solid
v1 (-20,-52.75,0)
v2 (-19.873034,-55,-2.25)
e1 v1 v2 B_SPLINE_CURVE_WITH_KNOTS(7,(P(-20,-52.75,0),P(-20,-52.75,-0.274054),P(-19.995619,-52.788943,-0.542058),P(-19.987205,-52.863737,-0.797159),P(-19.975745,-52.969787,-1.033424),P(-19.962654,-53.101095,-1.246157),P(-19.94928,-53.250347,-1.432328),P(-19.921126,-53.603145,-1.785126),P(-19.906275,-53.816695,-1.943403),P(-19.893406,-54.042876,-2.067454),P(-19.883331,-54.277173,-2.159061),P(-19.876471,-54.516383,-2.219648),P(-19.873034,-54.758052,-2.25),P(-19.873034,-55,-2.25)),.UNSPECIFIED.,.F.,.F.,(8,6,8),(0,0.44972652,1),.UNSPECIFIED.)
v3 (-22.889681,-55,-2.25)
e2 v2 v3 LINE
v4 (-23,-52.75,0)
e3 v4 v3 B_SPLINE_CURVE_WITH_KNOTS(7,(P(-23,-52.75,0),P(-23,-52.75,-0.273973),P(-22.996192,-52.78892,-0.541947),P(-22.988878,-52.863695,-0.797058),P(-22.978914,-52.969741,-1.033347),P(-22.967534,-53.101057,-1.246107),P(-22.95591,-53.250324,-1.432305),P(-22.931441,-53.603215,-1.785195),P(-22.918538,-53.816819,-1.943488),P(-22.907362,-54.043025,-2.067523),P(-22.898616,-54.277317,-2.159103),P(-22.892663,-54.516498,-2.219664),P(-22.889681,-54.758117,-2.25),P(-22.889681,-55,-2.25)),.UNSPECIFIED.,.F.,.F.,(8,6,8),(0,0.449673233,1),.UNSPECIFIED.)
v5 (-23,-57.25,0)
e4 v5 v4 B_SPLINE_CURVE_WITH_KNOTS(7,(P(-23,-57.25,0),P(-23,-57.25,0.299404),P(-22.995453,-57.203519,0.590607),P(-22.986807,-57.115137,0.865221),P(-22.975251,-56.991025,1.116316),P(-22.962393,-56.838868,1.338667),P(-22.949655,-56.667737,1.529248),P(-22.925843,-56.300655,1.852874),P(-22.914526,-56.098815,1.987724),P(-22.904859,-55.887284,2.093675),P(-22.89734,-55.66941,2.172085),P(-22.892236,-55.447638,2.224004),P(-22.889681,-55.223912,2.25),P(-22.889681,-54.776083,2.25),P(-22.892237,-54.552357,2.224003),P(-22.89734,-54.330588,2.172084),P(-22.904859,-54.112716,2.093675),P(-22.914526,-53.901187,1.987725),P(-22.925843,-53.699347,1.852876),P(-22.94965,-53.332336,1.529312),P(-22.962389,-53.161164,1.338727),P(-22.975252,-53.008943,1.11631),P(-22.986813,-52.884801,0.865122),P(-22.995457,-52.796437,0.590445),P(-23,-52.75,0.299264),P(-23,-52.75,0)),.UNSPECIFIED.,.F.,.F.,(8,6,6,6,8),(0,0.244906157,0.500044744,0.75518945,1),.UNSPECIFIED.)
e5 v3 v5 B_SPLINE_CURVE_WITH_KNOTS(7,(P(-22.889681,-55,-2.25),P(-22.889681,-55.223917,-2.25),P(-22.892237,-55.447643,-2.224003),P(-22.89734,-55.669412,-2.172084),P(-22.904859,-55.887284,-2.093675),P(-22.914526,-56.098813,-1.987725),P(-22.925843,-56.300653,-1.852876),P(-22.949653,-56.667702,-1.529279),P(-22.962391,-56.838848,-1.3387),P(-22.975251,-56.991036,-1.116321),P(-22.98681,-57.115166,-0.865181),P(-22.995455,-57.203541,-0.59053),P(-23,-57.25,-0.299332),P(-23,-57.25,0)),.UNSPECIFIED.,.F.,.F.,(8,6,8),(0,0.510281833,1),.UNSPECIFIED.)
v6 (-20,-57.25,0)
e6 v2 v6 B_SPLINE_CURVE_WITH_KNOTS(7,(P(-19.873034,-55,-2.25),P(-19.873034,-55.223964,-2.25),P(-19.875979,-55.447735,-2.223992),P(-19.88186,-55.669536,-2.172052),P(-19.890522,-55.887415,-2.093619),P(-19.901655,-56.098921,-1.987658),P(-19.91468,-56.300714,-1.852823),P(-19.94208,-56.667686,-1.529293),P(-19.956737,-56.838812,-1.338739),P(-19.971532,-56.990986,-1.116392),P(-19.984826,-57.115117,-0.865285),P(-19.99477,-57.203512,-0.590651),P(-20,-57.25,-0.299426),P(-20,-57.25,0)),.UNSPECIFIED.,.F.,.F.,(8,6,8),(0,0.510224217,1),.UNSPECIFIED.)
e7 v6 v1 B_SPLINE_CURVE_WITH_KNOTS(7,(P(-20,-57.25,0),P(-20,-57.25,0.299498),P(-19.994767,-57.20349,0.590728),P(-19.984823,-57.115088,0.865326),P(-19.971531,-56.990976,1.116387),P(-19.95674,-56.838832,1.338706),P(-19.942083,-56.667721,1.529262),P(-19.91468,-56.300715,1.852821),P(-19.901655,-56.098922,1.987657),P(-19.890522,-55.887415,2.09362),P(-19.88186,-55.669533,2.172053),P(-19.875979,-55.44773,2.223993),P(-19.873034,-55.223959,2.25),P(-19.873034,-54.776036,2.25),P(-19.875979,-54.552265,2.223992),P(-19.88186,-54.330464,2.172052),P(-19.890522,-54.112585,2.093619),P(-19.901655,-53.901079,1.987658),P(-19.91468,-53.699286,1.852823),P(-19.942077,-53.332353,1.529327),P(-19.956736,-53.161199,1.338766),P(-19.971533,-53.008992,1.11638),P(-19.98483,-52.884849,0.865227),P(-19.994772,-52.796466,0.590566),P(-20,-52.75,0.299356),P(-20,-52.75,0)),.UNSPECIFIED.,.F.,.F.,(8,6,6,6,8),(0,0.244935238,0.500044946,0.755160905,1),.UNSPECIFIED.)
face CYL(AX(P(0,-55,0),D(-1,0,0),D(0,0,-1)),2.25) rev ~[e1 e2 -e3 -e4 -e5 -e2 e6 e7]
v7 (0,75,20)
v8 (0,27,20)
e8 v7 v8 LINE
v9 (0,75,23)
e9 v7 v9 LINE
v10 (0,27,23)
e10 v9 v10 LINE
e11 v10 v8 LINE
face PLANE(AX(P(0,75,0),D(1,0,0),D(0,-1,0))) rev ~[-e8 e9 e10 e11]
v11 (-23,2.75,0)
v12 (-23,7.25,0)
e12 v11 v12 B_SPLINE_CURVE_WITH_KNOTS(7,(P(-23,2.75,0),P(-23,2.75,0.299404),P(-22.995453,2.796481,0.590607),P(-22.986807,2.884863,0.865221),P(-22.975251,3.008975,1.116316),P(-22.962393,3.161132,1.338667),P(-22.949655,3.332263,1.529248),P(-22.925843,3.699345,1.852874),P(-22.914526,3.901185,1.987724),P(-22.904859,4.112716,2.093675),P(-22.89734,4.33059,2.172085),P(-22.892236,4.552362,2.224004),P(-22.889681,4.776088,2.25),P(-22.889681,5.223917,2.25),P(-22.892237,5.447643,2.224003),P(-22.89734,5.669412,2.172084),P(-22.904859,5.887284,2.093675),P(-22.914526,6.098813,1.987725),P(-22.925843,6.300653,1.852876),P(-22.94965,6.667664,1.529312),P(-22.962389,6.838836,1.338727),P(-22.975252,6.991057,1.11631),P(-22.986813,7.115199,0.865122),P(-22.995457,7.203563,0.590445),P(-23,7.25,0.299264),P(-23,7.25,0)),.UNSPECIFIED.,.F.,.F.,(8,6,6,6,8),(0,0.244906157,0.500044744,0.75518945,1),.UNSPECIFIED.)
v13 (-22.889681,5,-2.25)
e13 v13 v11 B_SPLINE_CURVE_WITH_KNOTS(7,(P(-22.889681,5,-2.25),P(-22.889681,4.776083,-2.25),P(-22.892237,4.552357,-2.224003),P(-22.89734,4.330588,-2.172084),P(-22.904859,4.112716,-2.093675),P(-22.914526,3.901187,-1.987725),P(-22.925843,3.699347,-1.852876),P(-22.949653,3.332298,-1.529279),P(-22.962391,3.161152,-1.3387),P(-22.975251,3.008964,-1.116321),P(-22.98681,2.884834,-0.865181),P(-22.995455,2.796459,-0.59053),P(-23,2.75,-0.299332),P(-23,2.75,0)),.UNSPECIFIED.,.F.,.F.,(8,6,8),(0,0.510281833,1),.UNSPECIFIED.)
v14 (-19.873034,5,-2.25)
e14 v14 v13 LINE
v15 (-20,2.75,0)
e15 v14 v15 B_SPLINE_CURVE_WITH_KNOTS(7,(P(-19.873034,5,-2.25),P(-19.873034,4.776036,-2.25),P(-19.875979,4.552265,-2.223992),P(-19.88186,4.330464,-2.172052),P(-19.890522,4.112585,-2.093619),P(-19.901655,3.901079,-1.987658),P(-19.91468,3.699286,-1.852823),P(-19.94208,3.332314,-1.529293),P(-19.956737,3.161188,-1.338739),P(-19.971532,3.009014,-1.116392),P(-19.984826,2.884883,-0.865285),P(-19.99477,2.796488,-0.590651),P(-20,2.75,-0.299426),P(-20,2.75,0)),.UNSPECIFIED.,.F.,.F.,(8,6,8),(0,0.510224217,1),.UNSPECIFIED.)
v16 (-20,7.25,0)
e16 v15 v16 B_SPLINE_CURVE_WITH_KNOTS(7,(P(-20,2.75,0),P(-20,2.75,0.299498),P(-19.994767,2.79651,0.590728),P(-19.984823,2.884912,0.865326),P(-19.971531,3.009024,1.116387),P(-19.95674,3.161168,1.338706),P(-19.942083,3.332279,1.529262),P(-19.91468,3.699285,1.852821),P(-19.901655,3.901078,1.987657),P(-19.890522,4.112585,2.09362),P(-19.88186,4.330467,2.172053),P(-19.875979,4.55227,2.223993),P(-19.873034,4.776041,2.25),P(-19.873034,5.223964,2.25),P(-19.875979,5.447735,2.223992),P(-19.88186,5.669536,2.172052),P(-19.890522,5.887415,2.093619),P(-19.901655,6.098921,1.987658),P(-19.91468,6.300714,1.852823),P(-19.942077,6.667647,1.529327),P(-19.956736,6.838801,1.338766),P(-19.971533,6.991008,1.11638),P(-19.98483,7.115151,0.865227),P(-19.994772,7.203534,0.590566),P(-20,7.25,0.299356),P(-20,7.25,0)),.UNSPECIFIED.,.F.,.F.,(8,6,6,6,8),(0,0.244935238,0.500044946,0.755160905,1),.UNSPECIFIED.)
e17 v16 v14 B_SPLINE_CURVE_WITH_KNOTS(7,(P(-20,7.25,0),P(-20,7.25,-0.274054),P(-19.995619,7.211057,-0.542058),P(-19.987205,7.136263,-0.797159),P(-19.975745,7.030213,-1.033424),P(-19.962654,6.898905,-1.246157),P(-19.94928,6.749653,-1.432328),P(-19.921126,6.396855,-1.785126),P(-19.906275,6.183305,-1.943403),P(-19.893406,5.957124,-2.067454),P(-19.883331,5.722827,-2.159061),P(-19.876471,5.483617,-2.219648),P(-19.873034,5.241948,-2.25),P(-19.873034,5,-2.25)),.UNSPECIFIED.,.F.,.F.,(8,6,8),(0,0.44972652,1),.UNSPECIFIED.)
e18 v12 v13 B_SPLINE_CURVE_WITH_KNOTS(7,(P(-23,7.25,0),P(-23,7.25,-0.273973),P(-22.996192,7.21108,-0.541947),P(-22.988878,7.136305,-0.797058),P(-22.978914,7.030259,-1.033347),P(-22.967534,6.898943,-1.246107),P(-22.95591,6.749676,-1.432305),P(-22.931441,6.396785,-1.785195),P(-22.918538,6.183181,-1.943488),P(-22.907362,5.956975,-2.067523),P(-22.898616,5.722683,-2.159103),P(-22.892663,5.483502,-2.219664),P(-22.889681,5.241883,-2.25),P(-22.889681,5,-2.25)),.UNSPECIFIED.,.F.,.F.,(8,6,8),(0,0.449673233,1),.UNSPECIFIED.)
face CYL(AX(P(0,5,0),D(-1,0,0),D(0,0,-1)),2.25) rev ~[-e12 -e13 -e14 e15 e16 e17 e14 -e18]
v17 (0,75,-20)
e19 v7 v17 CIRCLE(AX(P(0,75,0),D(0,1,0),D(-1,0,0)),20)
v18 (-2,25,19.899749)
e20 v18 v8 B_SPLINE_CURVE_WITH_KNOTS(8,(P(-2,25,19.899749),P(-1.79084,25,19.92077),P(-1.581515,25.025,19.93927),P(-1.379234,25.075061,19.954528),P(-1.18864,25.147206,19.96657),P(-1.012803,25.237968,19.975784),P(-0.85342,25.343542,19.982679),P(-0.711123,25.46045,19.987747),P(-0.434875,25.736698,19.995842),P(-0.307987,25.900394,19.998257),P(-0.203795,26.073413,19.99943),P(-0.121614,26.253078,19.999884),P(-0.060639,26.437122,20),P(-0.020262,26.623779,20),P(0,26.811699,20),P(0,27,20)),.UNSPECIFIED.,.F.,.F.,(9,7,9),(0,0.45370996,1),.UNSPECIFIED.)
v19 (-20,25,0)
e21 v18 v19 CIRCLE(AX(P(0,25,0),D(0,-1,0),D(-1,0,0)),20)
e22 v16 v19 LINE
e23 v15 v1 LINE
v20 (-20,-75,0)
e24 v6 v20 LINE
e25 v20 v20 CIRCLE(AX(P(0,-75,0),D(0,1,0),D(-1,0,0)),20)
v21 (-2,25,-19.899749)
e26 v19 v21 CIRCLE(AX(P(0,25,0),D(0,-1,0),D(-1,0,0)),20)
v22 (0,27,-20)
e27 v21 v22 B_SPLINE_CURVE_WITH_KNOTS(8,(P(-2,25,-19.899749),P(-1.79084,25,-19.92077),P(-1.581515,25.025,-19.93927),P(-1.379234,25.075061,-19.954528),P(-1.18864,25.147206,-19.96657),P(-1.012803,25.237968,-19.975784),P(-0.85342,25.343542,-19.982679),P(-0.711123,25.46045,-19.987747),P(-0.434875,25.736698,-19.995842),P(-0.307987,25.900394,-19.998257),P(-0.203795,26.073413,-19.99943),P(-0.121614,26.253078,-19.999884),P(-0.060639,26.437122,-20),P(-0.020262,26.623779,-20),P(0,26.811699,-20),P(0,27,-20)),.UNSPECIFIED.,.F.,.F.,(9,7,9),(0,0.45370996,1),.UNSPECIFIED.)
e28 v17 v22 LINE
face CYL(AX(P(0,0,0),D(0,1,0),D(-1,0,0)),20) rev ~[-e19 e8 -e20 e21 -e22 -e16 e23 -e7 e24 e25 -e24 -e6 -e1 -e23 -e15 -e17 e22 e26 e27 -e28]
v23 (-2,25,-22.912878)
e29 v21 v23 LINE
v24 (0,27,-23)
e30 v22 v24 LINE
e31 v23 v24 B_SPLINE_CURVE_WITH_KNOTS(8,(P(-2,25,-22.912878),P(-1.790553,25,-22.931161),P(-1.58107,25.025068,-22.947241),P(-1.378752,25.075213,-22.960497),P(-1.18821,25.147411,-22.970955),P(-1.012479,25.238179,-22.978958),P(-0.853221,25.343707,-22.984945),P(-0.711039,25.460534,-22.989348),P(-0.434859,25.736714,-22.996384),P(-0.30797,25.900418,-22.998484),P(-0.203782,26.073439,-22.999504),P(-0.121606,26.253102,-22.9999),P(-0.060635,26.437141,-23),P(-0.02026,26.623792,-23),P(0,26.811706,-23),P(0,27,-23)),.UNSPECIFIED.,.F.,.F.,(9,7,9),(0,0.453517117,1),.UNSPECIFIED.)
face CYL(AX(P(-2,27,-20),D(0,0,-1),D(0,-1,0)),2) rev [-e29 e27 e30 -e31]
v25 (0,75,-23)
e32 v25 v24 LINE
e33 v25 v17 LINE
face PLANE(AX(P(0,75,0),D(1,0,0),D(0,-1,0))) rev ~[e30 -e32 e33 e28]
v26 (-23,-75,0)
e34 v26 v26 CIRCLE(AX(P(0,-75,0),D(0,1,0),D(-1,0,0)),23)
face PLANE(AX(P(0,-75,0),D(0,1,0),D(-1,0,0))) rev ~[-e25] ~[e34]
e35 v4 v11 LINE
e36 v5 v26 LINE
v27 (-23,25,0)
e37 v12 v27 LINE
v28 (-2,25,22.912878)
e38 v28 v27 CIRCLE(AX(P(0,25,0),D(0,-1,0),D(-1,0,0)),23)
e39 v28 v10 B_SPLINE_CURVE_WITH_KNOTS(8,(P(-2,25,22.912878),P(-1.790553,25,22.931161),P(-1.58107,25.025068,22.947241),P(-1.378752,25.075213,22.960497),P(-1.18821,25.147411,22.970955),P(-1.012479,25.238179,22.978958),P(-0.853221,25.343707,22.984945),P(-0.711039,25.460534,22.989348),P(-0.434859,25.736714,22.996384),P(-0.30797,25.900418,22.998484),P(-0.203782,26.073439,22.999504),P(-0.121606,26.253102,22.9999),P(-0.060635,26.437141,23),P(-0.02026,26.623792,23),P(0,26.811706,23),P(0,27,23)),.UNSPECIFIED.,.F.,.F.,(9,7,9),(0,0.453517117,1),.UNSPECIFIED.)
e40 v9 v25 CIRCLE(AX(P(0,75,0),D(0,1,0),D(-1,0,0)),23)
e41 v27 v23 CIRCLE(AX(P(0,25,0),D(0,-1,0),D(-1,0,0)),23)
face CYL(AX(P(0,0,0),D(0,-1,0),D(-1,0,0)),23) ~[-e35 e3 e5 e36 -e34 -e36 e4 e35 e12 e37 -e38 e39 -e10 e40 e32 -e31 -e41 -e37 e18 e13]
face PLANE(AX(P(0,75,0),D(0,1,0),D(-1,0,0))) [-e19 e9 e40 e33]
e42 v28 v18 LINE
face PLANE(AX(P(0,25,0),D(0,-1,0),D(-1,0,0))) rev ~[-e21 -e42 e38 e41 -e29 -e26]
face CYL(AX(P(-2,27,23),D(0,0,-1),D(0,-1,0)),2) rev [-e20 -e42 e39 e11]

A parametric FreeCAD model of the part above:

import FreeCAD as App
import Part
import Sketcher

V = App.Vector
Q = App.Units.Quantity


def edges_at(feature, points):
    """Names of the edges that pass closest to the given points."""
    edges = feature.Shape.Edges
    near = lambda p: min(range(len(edges)), key=lambda i: edges[i].distToShape(Part.Vertex(*p))[0])
    return sorted({f"Edge{near(p) + 1}" for p in points})


def add_polygon(sketch, points):
    """Adds a closed chain of lines whose ends are joined by coincident constraints."""
    first, n = sketch.GeometryCount, len(points)
    for a, b in zip(points, points[1:] + points[:1]):
        sketch.addGeometry(Part.LineSegment(App.Vector(*a, 0), App.Vector(*b, 0)), False)
    for i in range(n):
        sketch.addConstraint(Sketcher.Constraint("Coincident", first + i, 2, first + (i + 1) % n, 1))

doc = App.newDocument("Part")
body = doc.addObject("PartDesign::Body", "Body")

# Sketch on XZ plane
sketch1 = body.newObject("Sketcher::SketchObject", "Sketch")
sketch1.AttachmentSupport = (doc.getObject("XZ_Plane"), [""])
sketch1.MapMode = "FlatFace"
sketch1.addGeometry([
    Part.Circle(V(0, 0, 0), V(0, 0, 1), 23),
    Part.Circle(V(0, 0, 0), V(0, 0, 1), 20),
], False)
sketch1.addConstraint([
    Sketcher.Constraint("Coincident", 0, 3, -1, 1),
    Sketcher.Constraint("Coincident", 1, 3, -1, 1),
    Sketcher.Constraint("Diameter", 1, Q("40 mm")),
    Sketcher.Constraint("Diameter", 0, Q("46 mm")),
])
pad1 = body.newObject("PartDesign::Pad", "Pad")
pad1.Profile = sketch1
pad1.Length = 150
pad1.Midplane = True

# Sketch on YZ plane
sketch2 = body.newObject("Sketcher::SketchObject", "Sketch001")
sketch2.AttachmentSupport = (doc.getObject("YZ_Plane"), [""])
sketch2.MapMode = "FlatFace"
sketch2.addGeometry([
    Part.Circle(V(5, 0, 0), V(0, 0, 1), 2.2),
    Part.Circle(V(-55, 0, 0), V(0, 0, 1), 2.2),
], False)
sketch2.addConstraint([
    Sketcher.Constraint("Equal", 0, 1),
    Sketcher.Constraint("PointOnObject", 0, 3, -1),
    Sketcher.Constraint("PointOnObject", 1, 3, -1),
    Sketcher.Constraint("Diameter", 0, Q("4.5 mm")),
    Sketcher.Constraint("DistanceX", -1, 1, 0, 3, Q("5 mm")),
    Sketcher.Constraint("DistanceX", 1, 3, -1, 1, Q("55 mm")),
])
doc.recompute()
hole = body.newObject("PartDesign::Hole", "Hole")
hole.Profile = sketch2
hole.ThreadType = "None"
hole.Diameter = 4.5
hole.DepthType = "ThroughAll"

# Sketch on XY plane
sketch3 = body.newObject("Sketcher::SketchObject", "Sketch002")
sketch3.AttachmentSupport = (doc.getObject("XY_Plane"), [""])
sketch3.MapMode = "FlatFace"
add_polygon(sketch3, [(0, 25), (0, 75), (-23, 75), (-23, 25)])  # lines 0-3
sketch3.addConstraint([
    Sketcher.Constraint("Vertical", 0),
    Sketcher.Constraint("Horizontal", 1),
    Sketcher.Constraint("Vertical", 2),
    Sketcher.Constraint("Horizontal", 3),
    Sketcher.Constraint("PointOnObject", 0, 2, -2),
    Sketcher.Constraint("DistanceX", 1, 2, 1, 1, Q("23 mm")),
    Sketcher.Constraint("DistanceY", 0, 1, 0, 2, Q("50 mm")),
    Sketcher.Constraint("DistanceY", -1, 1, 0, 2, Q("75 mm")),
])
pocket1 = body.newObject("PartDesign::Pocket", "Pocket")
pocket1.Profile = sketch3
pocket1.Type = "ThroughAll"
pocket1.Midplane = True
doc.recompute()

fillet = body.newObject("PartDesign::Fillet", "Fillet")
fillet.Base = (pocket1, edges_at(pocket1, [(0, 25, 21.5), (0, 25, -21.5)]))
fillet.Radius = 2

doc.recompute()
